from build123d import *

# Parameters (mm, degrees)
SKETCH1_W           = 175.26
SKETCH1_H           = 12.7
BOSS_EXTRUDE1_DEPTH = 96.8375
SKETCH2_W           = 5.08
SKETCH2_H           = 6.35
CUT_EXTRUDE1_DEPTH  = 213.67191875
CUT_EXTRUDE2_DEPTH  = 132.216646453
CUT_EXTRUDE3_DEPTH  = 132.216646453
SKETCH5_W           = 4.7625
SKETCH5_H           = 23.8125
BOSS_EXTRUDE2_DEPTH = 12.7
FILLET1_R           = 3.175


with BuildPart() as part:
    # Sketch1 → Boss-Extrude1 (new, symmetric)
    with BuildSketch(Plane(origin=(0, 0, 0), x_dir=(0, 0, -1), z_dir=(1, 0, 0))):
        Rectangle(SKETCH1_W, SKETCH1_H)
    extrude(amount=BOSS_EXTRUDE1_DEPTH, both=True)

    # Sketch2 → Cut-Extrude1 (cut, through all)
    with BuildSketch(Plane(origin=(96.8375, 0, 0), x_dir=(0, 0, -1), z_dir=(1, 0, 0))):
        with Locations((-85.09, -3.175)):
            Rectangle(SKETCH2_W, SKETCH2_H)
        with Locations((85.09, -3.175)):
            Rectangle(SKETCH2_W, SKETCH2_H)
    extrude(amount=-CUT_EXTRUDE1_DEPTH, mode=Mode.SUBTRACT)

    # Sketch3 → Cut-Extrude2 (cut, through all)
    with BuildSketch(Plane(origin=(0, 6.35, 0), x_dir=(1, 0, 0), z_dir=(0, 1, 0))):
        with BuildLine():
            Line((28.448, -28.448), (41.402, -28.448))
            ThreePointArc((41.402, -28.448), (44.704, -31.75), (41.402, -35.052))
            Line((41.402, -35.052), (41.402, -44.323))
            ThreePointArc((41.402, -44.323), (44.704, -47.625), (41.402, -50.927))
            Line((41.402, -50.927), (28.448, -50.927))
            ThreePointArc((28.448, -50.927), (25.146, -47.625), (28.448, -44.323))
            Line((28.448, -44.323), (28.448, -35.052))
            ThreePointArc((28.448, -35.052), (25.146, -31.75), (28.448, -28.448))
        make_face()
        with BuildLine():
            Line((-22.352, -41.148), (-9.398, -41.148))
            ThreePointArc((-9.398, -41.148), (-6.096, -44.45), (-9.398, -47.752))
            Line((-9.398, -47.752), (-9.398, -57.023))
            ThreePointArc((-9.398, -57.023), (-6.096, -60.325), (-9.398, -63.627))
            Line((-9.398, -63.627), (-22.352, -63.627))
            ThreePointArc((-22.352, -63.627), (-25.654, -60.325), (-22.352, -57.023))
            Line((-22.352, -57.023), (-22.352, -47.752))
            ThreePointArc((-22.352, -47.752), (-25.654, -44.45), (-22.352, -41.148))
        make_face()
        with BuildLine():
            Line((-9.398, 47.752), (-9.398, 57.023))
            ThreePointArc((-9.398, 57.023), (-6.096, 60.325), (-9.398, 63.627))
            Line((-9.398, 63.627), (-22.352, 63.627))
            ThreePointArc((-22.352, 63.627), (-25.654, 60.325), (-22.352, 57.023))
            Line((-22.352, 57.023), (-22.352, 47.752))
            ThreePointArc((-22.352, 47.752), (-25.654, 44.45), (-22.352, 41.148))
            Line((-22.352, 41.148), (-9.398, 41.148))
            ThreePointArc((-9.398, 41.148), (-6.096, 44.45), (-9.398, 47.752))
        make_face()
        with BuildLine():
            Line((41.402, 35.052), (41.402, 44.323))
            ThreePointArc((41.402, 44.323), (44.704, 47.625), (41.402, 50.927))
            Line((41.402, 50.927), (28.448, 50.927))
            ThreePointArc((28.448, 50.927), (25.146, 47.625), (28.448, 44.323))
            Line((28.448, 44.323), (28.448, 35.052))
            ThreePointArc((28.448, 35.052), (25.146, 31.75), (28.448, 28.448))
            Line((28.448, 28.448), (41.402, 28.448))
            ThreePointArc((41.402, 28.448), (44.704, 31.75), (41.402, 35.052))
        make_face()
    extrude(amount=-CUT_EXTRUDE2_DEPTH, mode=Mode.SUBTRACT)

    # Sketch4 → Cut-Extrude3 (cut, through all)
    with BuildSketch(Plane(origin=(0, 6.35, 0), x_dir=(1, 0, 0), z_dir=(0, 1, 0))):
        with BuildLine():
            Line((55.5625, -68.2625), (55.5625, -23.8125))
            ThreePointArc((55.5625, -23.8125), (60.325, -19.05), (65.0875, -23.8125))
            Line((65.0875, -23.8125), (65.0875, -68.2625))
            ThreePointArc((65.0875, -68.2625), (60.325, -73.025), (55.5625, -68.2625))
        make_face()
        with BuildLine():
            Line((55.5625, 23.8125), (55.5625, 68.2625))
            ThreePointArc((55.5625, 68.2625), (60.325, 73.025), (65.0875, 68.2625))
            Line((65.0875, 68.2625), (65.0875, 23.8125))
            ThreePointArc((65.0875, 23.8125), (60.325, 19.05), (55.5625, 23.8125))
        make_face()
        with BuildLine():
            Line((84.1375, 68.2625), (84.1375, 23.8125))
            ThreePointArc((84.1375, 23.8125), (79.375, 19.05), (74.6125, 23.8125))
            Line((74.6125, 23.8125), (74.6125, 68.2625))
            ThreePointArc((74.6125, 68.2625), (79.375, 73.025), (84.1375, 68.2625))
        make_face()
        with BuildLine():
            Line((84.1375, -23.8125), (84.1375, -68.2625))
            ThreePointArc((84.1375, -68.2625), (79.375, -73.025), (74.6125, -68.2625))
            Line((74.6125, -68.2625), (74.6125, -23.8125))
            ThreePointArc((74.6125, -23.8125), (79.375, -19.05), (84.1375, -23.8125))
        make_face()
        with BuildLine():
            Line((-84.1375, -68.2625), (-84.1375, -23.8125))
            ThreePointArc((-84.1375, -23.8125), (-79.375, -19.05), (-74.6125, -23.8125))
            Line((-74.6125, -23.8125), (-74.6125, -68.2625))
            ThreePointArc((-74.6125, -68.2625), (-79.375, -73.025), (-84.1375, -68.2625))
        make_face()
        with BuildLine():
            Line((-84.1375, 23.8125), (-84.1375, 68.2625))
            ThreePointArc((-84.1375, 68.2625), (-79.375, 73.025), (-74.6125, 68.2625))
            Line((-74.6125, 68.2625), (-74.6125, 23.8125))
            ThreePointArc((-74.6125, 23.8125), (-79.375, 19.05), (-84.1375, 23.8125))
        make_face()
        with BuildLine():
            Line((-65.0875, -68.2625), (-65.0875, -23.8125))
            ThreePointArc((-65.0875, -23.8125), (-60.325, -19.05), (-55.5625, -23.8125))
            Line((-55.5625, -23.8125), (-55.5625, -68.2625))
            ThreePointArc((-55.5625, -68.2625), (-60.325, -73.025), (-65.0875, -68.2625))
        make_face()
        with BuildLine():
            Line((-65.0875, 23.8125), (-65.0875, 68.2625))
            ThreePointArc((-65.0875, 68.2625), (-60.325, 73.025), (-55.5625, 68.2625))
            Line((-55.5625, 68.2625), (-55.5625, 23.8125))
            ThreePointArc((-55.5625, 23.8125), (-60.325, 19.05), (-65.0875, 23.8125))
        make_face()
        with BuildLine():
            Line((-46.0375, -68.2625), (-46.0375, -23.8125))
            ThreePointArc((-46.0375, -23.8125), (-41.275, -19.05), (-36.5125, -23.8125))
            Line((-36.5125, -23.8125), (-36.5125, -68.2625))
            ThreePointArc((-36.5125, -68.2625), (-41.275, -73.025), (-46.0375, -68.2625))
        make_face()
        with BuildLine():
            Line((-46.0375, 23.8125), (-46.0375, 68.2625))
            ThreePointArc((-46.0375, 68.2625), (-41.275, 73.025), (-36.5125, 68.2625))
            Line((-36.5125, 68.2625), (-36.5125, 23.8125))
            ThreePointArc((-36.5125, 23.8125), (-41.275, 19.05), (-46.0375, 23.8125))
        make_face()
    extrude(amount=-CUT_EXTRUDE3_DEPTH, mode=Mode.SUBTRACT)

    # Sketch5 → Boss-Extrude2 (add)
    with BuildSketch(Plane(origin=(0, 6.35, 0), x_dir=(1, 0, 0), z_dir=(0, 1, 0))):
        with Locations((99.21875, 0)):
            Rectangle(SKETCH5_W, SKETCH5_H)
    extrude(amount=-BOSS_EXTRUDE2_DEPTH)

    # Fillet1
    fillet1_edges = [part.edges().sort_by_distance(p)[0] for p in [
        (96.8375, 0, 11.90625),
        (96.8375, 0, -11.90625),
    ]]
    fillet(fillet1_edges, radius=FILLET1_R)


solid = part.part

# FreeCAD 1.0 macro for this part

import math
import FreeCAD as App
import Part
import Sketcher

V = App.Vector
Q = App.Units.Quantity


def edges_at(feature, points):
    """Names of the edges that pass closest to the given points."""
    edges = feature.Shape.Edges
    near = lambda p: min(range(len(edges)), key=lambda i: edges[i].distToShape(Part.Vertex(*p))[0])
    return sorted({f"Edge{near(p) + 1}" for p in points})

doc = App.newDocument("Part")
body = doc.addObject("PartDesign::Body", "Body")

# Sketch on YZ plane
sketch1 = body.newObject("Sketcher::SketchObject", "Sketch")
sketch1.AttachmentSupport = (doc.getObject("YZ_Plane"), [""])
sketch1.MapMode = "FlatFace"
sketch1.addGeometry([
    Part.LineSegment(V(6, 88, 0), V(-6, 88, 0)),
    Part.LineSegment(V(-6, 88, 0), V(-6, -88, 0)),
    Part.LineSegment(V(-6, -88, 0), V(6, -88, 0)),
    Part.LineSegment(V(6, -88, 0), V(6, 88, 0)),
], False)
sketch1.addConstraint([
    Sketcher.Constraint("Coincident", 0, 2, 1, 1),
    Sketcher.Constraint("Coincident", 1, 2, 2, 1),
    Sketcher.Constraint("Coincident", 2, 2, 3, 1),
    Sketcher.Constraint("Coincident", 3, 2, 0, 1),
    Sketcher.Constraint("Horizontal", 0),
    Sketcher.Constraint("Vertical", 1),
    Sketcher.Constraint("Horizontal", 2),
    Sketcher.Constraint("Vertical", 3),
    Sketcher.Constraint("Symmetric", 0, 2, 2, 2, -1, 1),
    Sketcher.Constraint("DistanceX", 0, 2, 0, 1, Q("0.5 in")),
    Sketcher.Constraint("DistanceY", 1, 2, 1, 1, Q("6.9 in")),
])
pad1 = body.newObject("PartDesign::Pad", "Pad")
pad1.Profile = sketch1
pad1.Length = Q("7.625 in")
pad1.Midplane = True

# Sketch on YZ plane
sketch2 = body.newObject("Sketcher::SketchObject", "Sketch001")
sketch2.AttachmentSupport = (doc.getObject("YZ_Plane"), [""])
sketch2.MapMode = "FlatFace"
sketch2.AttachmentOffset = App.Placement(V(0, 0, 3.8125 * 25.4), App.Rotation())
sketch2.addGeometry([
    Part.LineSegment(V(0, 88, 0), V(-6, 88, 0)),  # 0
    Part.LineSegment(V(-6, 88, 0), V(-6, 83, 0)),  # 1
    Part.LineSegment(V(-6, 83, 0), V(0, 83, 0)),  # 2
    Part.LineSegment(V(0, 83, 0), V(0, 88, 0)),  # 3
    Part.LineSegment(V(0, -83, 0), V(-6, -83, 0)),  # 4
    Part.LineSegment(V(-6, -83, 0), V(-6, -88, 0)),  # 5
    Part.LineSegment(V(-6, -88, 0), V(0, -88, 0)),  # 6
    Part.LineSegment(V(0, -88, 0), V(0, -83, 0)),  # 7
], False)
sketch2.addConstraint([
    Sketcher.Constraint("Coincident", 0, 2, 1, 1),
    Sketcher.Constraint("Coincident", 1, 2, 2, 1),
    Sketcher.Constraint("Coincident", 2, 2, 3, 1),
    Sketcher.Constraint("Coincident", 3, 2, 0, 1),
    Sketcher.Constraint("Coincident", 4, 2, 5, 1),
    Sketcher.Constraint("Coincident", 5, 2, 6, 1),
    Sketcher.Constraint("Coincident", 6, 2, 7, 1),
    Sketcher.Constraint("Coincident", 7, 2, 4, 1),
    Sketcher.Constraint("Horizontal", 0),
    Sketcher.Constraint("Vertical", 1),
    Sketcher.Constraint("Horizontal", 2),
    Sketcher.Constraint("Vertical", 3),
    Sketcher.Constraint("Horizontal", 4),
    Sketcher.Constraint("Vertical", 5),
    Sketcher.Constraint("Horizontal", 6),
    Sketcher.Constraint("Vertical", 7),
    Sketcher.Constraint("Symmetric", 3, 2, 6, 2, -1, 1),
    Sketcher.Constraint("Symmetric", 1, 2, 4, 2, -1),
    Sketcher.Constraint("PointOnObject", 2, 2, -2),
    Sketcher.Constraint("DistanceY", 1, 2, 1, 1, Q("0.2 in")),
    Sketcher.Constraint("DistanceX", 0, 2, 0, 1, Q("0.25 in")),
    Sketcher.Constraint("DistanceY", 4, 2, 1, 2, Q("6.5 in")),
])
pocket1 = body.newObject("PartDesign::Pocket", "Pocket")
pocket1.Profile = sketch2
pocket1.Type = "ThroughAll"

# Sketch on XZ plane
sketch3 = body.newObject("Sketcher::SketchObject", "Sketch002")
sketch3.AttachmentSupport = (doc.getObject("XZ_Plane"), [""])
sketch3.MapMode = "FlatFace"
sketch3.AttachmentOffset = App.Placement(V(0, 0, -0.25 * 25.4), App.Rotation())
sketch3.addGeometry([
    Part.LineSegment(V(41.4, 28.4, 0), V(28.4, 28.4, 0)),  # 0
    Part.ArcOfCircle(Part.Circle(V(28.4, 31.8, 0), V(0, 0, 1), 3.3), math.radians(90), math.radians(270)),  # 1
    Part.LineSegment(V(28.4, 35.1, 0), V(28.4, 44.3, 0)),  # 2
    Part.ArcOfCircle(Part.Circle(V(28.4, 47.6, 0), V(0, 0, 1), 3.3), math.radians(90), math.radians(270)),  # 3
    Part.LineSegment(V(28.4, 50.9, 0), V(41.4, 50.9, 0)),  # 4
    Part.ArcOfCircle(Part.Circle(V(41.4, 47.6, 0), V(0, 0, 1), 3.3), math.radians(-90), math.radians(90)),  # 5
    Part.LineSegment(V(41.4, 44.3, 0), V(41.4, 35.1, 0)),  # 6
    Part.ArcOfCircle(Part.Circle(V(41.4, 31.8, 0), V(0, 0, 1), 3.3), math.radians(-90), math.radians(90)),  # 7
    Part.LineSegment(V(-9.4, 41.1, 0), V(-22.4, 41.1, 0)),  # 8
    Part.ArcOfCircle(Part.Circle(V(-22.4, 44.5, 0), V(0, 0, 1), 3.3), math.radians(90), math.radians(270)),  # 9
    Part.LineSegment(V(-22.4, 47.8, 0), V(-22.4, 57, 0)),  # 10
    Part.ArcOfCircle(Part.Circle(V(-22.4, 60.3, 0), V(0, 0, 1), 3.3), math.radians(90), math.radians(270)),  # 11
    Part.LineSegment(V(-22.4, 63.6, 0), V(-9.4, 63.6, 0)),  # 12
    Part.ArcOfCircle(Part.Circle(V(-9.4, 60.3, 0), V(0, 0, 1), 3.3), math.radians(-90), math.radians(90)),  # 13
    Part.LineSegment(V(-9.4, 57, 0), V(-9.4, 47.8, 0)),  # 14
    Part.ArcOfCircle(Part.Circle(V(-9.4, 44.5, 0), V(0, 0, 1), 3.3), math.radians(-90), math.radians(90)),  # 15
    Part.LineSegment(V(-9.4, -47.8, 0), V(-9.4, -57, 0)),  # 16
    Part.ArcOfCircle(Part.Circle(V(-9.4, -60.3, 0), V(0, 0, 1), 3.3), math.radians(-90), math.radians(90)),  # 17
    Part.LineSegment(V(-9.4, -63.6, 0), V(-22.4, -63.6, 0)),  # 18
    Part.ArcOfCircle(Part.Circle(V(-22.4, -60.3, 0), V(0, 0, 1), 3.3), math.radians(90), math.radians(270)),  # 19
    Part.LineSegment(V(-22.4, -57, 0), V(-22.4, -47.8, 0)),  # 20
    Part.ArcOfCircle(Part.Circle(V(-22.4, -44.5, 0), V(0, 0, 1), 3.3), math.radians(90), math.radians(270)),  # 21
    Part.LineSegment(V(-22.4, -41.1, 0), V(-9.4, -41.1, 0)),  # 22
    Part.ArcOfCircle(Part.Circle(V(-9.4, -44.5, 0), V(0, 0, 1), 3.3), math.radians(-90), math.radians(90)),  # 23
    Part.LineSegment(V(41.4, -35.1, 0), V(41.4, -44.3, 0)),  # 24
    Part.ArcOfCircle(Part.Circle(V(41.4, -47.6, 0), V(0, 0, 1), 3.3), math.radians(-90), math.radians(90)),  # 25
    Part.LineSegment(V(41.4, -50.9, 0), V(28.4, -50.9, 0)),  # 26
    Part.ArcOfCircle(Part.Circle(V(28.4, -47.6, 0), V(0, 0, 1), 3.3), math.radians(90), math.radians(270)),  # 27
    Part.LineSegment(V(28.4, -44.3, 0), V(28.4, -35.1, 0)),  # 28
    Part.ArcOfCircle(Part.Circle(V(28.4, -31.8, 0), V(0, 0, 1), 3.3), math.radians(90), math.radians(270)),  # 29
    Part.LineSegment(V(28.4, -28.4, 0), V(41.4, -28.4, 0)),  # 30
    Part.ArcOfCircle(Part.Circle(V(41.4, -31.8, 0), V(0, 0, 1), 3.3), math.radians(-90), math.radians(90)),  # 31
], False)
sketch3.addConstraint([
    Sketcher.Constraint("Tangent", 0, 2, 1, 2),
    Sketcher.Constraint("Coincident", 1, 1, 2, 1),
    Sketcher.Constraint("Coincident", 2, 2, 3, 2),
    Sketcher.Constraint("Tangent", 3, 1, 4, 1),
    Sketcher.Constraint("Tangent", 4, 2, 5, 2),
    Sketcher.Constraint("Coincident", 5, 1, 6, 1),
    Sketcher.Constraint("Coincident", 6, 2, 7, 2),
    Sketcher.Constraint("Tangent", 7, 1, 0, 1),
    Sketcher.Constraint("Tangent", 8, 2, 9, 2),
    Sketcher.Constraint("Coincident", 9, 1, 10, 1),
    Sketcher.Constraint("Coincident", 10, 2, 11, 2),
    Sketcher.Constraint("Tangent", 11, 1, 12, 1),
    Sketcher.Constraint("Tangent", 12, 2, 13, 2),
    Sketcher.Constraint("Coincident", 13, 1, 14, 1),
    Sketcher.Constraint("Coincident", 14, 2, 15, 2),
    Sketcher.Constraint("Tangent", 15, 1, 8, 1),
    Sketcher.Constraint("Coincident", 16, 2, 17, 2),
    Sketcher.Constraint("Tangent", 17, 1, 18, 1),
    Sketcher.Constraint("Tangent", 18, 2, 19, 2),
    Sketcher.Constraint("Coincident", 19, 1, 20, 1),
    Sketcher.Constraint("Coincident", 20, 2, 21, 2),
    Sketcher.Constraint("Tangent", 21, 1, 22, 1),
    Sketcher.Constraint("Tangent", 22, 2, 23, 2),
    Sketcher.Constraint("Coincident", 23, 1, 16, 1),
    Sketcher.Constraint("Coincident", 24, 2, 25, 2),
    Sketcher.Constraint("Tangent", 25, 1, 26, 1),
    Sketcher.Constraint("Tangent", 26, 2, 27, 2),
    Sketcher.Constraint("Coincident", 27, 1, 28, 1),
    Sketcher.Constraint("Coincident", 28, 2, 29, 2),
    Sketcher.Constraint("Tangent", 29, 1, 30, 1),
    Sketcher.Constraint("Tangent", 30, 2, 31, 2),
    Sketcher.Constraint("Coincident", 31, 1, 24, 1),
    Sketcher.Constraint("Horizontal", 0),
    Sketcher.Constraint("Vertical", 2),
    Sketcher.Constraint("Horizontal", 4),
    Sketcher.Constraint("Vertical", 6),
    Sketcher.Constraint("Horizontal", 8),
    Sketcher.Constraint("Vertical", 10),
    Sketcher.Constraint("Horizontal", 12),
    Sketcher.Constraint("Vertical", 14),
    Sketcher.Constraint("Vertical", 16),
    Sketcher.Constraint("Horizontal", 18),
    Sketcher.Constraint("Vertical", 20),
    Sketcher.Constraint("Horizontal", 22),
    Sketcher.Constraint("Vertical", 24),
    Sketcher.Constraint("Horizontal", 26),
    Sketcher.Constraint("Vertical", 28),
    Sketcher.Constraint("Horizontal", 30),
    Sketcher.Constraint("Equal", 1, 3),
    Sketcher.Constraint("Equal", 3, 5),
    Sketcher.Constraint("Equal", 5, 7),
    Sketcher.Constraint("Equal", 7, 9),
    Sketcher.Constraint("Equal", 9, 11),
    Sketcher.Constraint("Equal", 11, 13),
    Sketcher.Constraint("Equal", 13, 15),
    Sketcher.Constraint("Equal", 15, 17),
    Sketcher.Constraint("Equal", 17, 19),
    Sketcher.Constraint("Equal", 19, 21),
    Sketcher.Constraint("Equal", 21, 23),
    Sketcher.Constraint("Equal", 23, 25),
    Sketcher.Constraint("Equal", 25, 27),
    Sketcher.Constraint("Equal", 27, 29),
    Sketcher.Constraint("Equal", 29, 31),
    Sketcher.Constraint("Symmetric", 13, 3, 17, 3, -1),
    Sketcher.Constraint("Symmetric", 9, 3, 21, 3, -1),
    Sketcher.Constraint("Symmetric", 5, 3, 25, 3, -1),
    Sketcher.Constraint("Symmetric", 1, 3, 29, 3, -1),
    Sketcher.Constraint("Vertical", 1, 3, 3, 3),
    Sketcher.Constraint("Vertical", 5, 3, 7, 3),
    Sketcher.Constraint("Vertical", 9, 3, 11, 3),
    Sketcher.Constraint("Vertical", 13, 3, 15, 3),
    Sketcher.Constraint("Vertical", 11, 3, 19, 3),
    Sketcher.Constraint("Vertical", 17, 3, 23, 3),
    Sketcher.Constraint("Vertical", 3, 3, 27, 3),
    Sketcher.Constraint("Vertical", 25, 3, 31, 3),
    Sketcher.Constraint("Vertical", 0, 2, 1, 1),
    Sketcher.Constraint("Vertical", 4, 2, 5, 1),
    Sketcher.Constraint("Vertical", 8, 2, 9, 1),
    Sketcher.Constraint("Vertical", 12, 2, 13, 1),
    Sketcher.Constraint("Vertical", 15, 1, 16, 2),
    Sketcher.Constraint("Vertical", 18, 2, 19, 1),
    Sketcher.Constraint("Vertical", 7, 1, 24, 2),
    Sketcher.Constraint("Vertical", 26, 2, 27, 1),
    Sketcher.Constraint("Equal", 4, 8),
    Sketcher.Constraint("Equal", 6, 10),
    Sketcher.Constraint("Radius", 1, Q("0.13 in")),
    Sketcher.Constraint("DistanceX", 9, 3, 3, 3, Q("2 in")),
    Sketcher.Constraint("DistanceY", 21, 3, 1, 3, Q("3 in")),
    Sketcher.Constraint("DistanceX", 0, 2, 0, 1, Q("0.51 in")),
    Sketcher.Constraint("DistanceY", 1, 3, 9, 3, Q("0.5 in")),
    Sketcher.Constraint("DistanceY", 2, 1, 2, 2, Q("0.365 in")),
    Sketcher.Constraint("DistanceX", -1, 1, 1, 3, Q("1.12 in")),
])
pocket2 = body.newObject("PartDesign::Pocket", "Pocket001")
pocket2.Profile = sketch3
pocket2.Type = "ThroughAll"
pocket2.Reversed = True

# Sketch on XZ plane
sketch4 = body.newObject("Sketcher::SketchObject", "Sketch003")
sketch4.AttachmentSupport = (doc.getObject("XZ_Plane"), [""])
sketch4.MapMode = "FlatFace"
sketch4.AttachmentOffset = App.Placement(V(0, 0, -0.25 * 25.4), App.Rotation())
sketch4.addGeometry([
    Part.LineSegment(V(55.6, 23.8, 0), V(55.6, 68.3, 0)),  # 0
    Part.ArcOfCircle(Part.Circle(V(60.3, 68.3, 0), V(0, 0, 1), 4.8), math.radians(0), math.radians(180)),  # 1
    Part.LineSegment(V(65.1, 68.3, 0), V(65.1, 23.8, 0)),  # 2
    Part.ArcOfCircle(Part.Circle(V(60.3, 23.8, 0), V(0, 0, 1), 4.8), math.radians(180), math.radians(360)),  # 3
    Part.LineSegment(V(55.6, -68.3, 0), V(55.6, -23.8, 0)),  # 4
    Part.ArcOfCircle(Part.Circle(V(60.3, -23.8, 0), V(0, 0, 1), 4.8), math.radians(0), math.radians(180)),  # 5
    Part.LineSegment(V(65.1, -23.8, 0), V(65.1, -68.3, 0)),  # 6
    Part.ArcOfCircle(Part.Circle(V(60.3, -68.3, 0), V(0, 0, 1), 4.8), math.radians(180), math.radians(360)),  # 7
    Part.LineSegment(V(84.1, -23.8, 0), V(84.1, -68.3, 0)),  # 8
    Part.ArcOfCircle(Part.Circle(V(79.4, -68.3, 0), V(0, 0, 1), 4.8), math.radians(180), math.radians(360)),  # 9
    Part.LineSegment(V(74.6, -68.3, 0), V(74.6, -23.8, 0)),  # 10
    Part.ArcOfCircle(Part.Circle(V(79.4, -23.8, 0), V(0, 0, 1), 4.8), math.radians(0), math.radians(180)),  # 11
    Part.LineSegment(V(84.1, 68.3, 0), V(84.1, 23.8, 0)),  # 12
    Part.ArcOfCircle(Part.Circle(V(79.4, 23.8, 0), V(0, 0, 1), 4.8), math.radians(180), math.radians(360)),  # 13
    Part.LineSegment(V(74.6, 23.8, 0), V(74.6, 68.3, 0)),  # 14
    Part.ArcOfCircle(Part.Circle(V(79.4, 68.3, 0), V(0, 0, 1), 4.8), math.radians(0), math.radians(180)),  # 15
    Part.LineSegment(V(-84.1, 23.8, 0), V(-84.1, 68.3, 0)),  # 16
    Part.ArcOfCircle(Part.Circle(V(-79.4, 68.3, 0), V(0, 0, 1), 4.8), math.radians(0), math.radians(180)),  # 17
    Part.LineSegment(V(-74.6, 68.3, 0), V(-74.6, 23.8, 0)),  # 18
    Part.ArcOfCircle(Part.Circle(V(-79.4, 23.8, 0), V(0, 0, 1), 4.8), math.radians(180), math.radians(360)),  # 19
    Part.LineSegment(V(-84.1, -68.3, 0), V(-84.1, -23.8, 0)),  # 20
    Part.ArcOfCircle(Part.Circle(V(-79.4, -23.8, 0), V(0, 0, 1), 4.8), math.radians(0), math.radians(180)),  # 21
    Part.LineSegment(V(-74.6, -23.8, 0), V(-74.6, -68.3, 0)),  # 22
    Part.ArcOfCircle(Part.Circle(V(-79.4, -68.3, 0), V(0, 0, 1), 4.8), math.radians(180), math.radians(360)),  # 23
    Part.LineSegment(V(-65.1, 23.8, 0), V(-65.1, 68.3, 0)),  # 24
    Part.ArcOfCircle(Part.Circle(V(-60.3, 68.3, 0), V(0, 0, 1), 4.8), math.radians(0), math.radians(180)),  # 25
    Part.LineSegment(V(-55.6, 68.3, 0), V(-55.6, 23.8, 0)),  # 26
    Part.ArcOfCircle(Part.Circle(V(-60.3, 23.8, 0), V(0, 0, 1), 4.8), math.radians(180), math.radians(360)),  # 27
    Part.LineSegment(V(-65.1, -68.3, 0), V(-65.1, -23.8, 0)),  # 28
    Part.ArcOfCircle(Part.Circle(V(-60.3, -23.8, 0), V(0, 0, 1), 4.8), math.radians(0), math.radians(180)),  # 29
    Part.LineSegment(V(-55.6, -23.8, 0), V(-55.6, -68.3, 0)),  # 30
    Part.ArcOfCircle(Part.Circle(V(-60.3, -68.3, 0), V(0, 0, 1), 4.8), math.radians(180), math.radians(360)),  # 31
    Part.LineSegment(V(-46, 23.8, 0), V(-46, 68.3, 0)),  # 32
    Part.ArcOfCircle(Part.Circle(V(-41.3, 68.3, 0), V(0, 0, 1), 4.8), math.radians(0), math.radians(180)),  # 33
    Part.LineSegment(V(-36.5, 68.3, 0), V(-36.5, 23.8, 0)),  # 34
    Part.ArcOfCircle(Part.Circle(V(-41.3, 23.8, 0), V(0, 0, 1), 4.8), math.radians(180), math.radians(360)),  # 35
    Part.LineSegment(V(-46, -68.3, 0), V(-46, -23.8, 0)),  # 36
    Part.ArcOfCircle(Part.Circle(V(-41.3, -23.8, 0), V(0, 0, 1), 4.8), math.radians(0), math.radians(180)),  # 37
    Part.LineSegment(V(-36.5, -23.8, 0), V(-36.5, -68.3, 0)),  # 38
    Part.ArcOfCircle(Part.Circle(V(-41.3, -68.3, 0), V(0, 0, 1), 4.8), math.radians(180), math.radians(360)),  # 39
], False)
sketch4.addConstraint([
    Sketcher.Constraint("Tangent", 0, 2, 1, 2),
    Sketcher.Constraint("Tangent", 1, 1, 2, 1),
    Sketcher.Constraint("Tangent", 2, 2, 3, 2),
    Sketcher.Constraint("Tangent", 3, 1, 0, 1),
    Sketcher.Constraint("Tangent", 4, 2, 5, 2),
    Sketcher.Constraint("Tangent", 5, 1, 6, 1),
    Sketcher.Constraint("Tangent", 6, 2, 7, 2),
    Sketcher.Constraint("Tangent", 7, 1, 4, 1),
    Sketcher.Constraint("Tangent", 8, 2, 9, 2),
    Sketcher.Constraint("Tangent", 9, 1, 10, 1),
    Sketcher.Constraint("Tangent", 10, 2, 11, 2),
    Sketcher.Constraint("Tangent", 11, 1, 8, 1),
    Sketcher.Constraint("Tangent", 12, 2, 13, 2),
    Sketcher.Constraint("Tangent", 13, 1, 14, 1),
    Sketcher.Constraint("Tangent", 14, 2, 15, 2),
    Sketcher.Constraint("Tangent", 15, 1, 12, 1),
    Sketcher.Constraint("Tangent", 16, 2, 17, 2),
    Sketcher.Constraint("Tangent", 17, 1, 18, 1),
    Sketcher.Constraint("Tangent", 18, 2, 19, 2),
    Sketcher.Constraint("Tangent", 19, 1, 16, 1),
    Sketcher.Constraint("Tangent", 20, 2, 21, 2),
    Sketcher.Constraint("Tangent", 21, 1, 22, 1),
    Sketcher.Constraint("Tangent", 22, 2, 23, 2),
    Sketcher.Constraint("Tangent", 23, 1, 20, 1),
    Sketcher.Constraint("Tangent", 24, 2, 25, 2),
    Sketcher.Constraint("Tangent", 25, 1, 26, 1),
    Sketcher.Constraint("Tangent", 26, 2, 27, 2),
    Sketcher.Constraint("Tangent", 27, 1, 24, 1),
    Sketcher.Constraint("Tangent", 28, 2, 29, 2),
    Sketcher.Constraint("Tangent", 29, 1, 30, 1),
    Sketcher.Constraint("Tangent", 30, 2, 31, 2),
    Sketcher.Constraint("Tangent", 31, 1, 28, 1),
    Sketcher.Constraint("Tangent", 32, 2, 33, 2),
    Sketcher.Constraint("Tangent", 33, 1, 34, 1),
    Sketcher.Constraint("Tangent", 34, 2, 35, 2),
    Sketcher.Constraint("Tangent", 35, 1, 32, 1),
    Sketcher.Constraint("Tangent", 36, 2, 37, 2),
    Sketcher.Constraint("Tangent", 37, 1, 38, 1),
    Sketcher.Constraint("Tangent", 38, 2, 39, 2),
    Sketcher.Constraint("Tangent", 39, 1, 36, 1),
    Sketcher.Constraint("Vertical", 0),
    Sketcher.Constraint("Vertical", 2),
    Sketcher.Constraint("Vertical", 4),
    Sketcher.Constraint("Vertical", 6),
    Sketcher.Constraint("Vertical", 8),
    Sketcher.Constraint("Vertical", 10),
    Sketcher.Constraint("Vertical", 12),
    Sketcher.Constraint("Vertical", 14),
    Sketcher.Constraint("Vertical", 16),
    Sketcher.Constraint("Vertical", 18),
    Sketcher.Constraint("Vertical", 20),
    Sketcher.Constraint("Vertical", 22),
    Sketcher.Constraint("Vertical", 24),
    Sketcher.Constraint("Vertical", 26),
    Sketcher.Constraint("Vertical", 28),
    Sketcher.Constraint("Vertical", 30),
    Sketcher.Constraint("Vertical", 32),
    Sketcher.Constraint("Vertical", 34),
    Sketcher.Constraint("Vertical", 36),
    Sketcher.Constraint("Vertical", 38),
    Sketcher.Constraint("Equal", 3, 5),
    Sketcher.Constraint("Equal", 7, 9),
    Sketcher.Constraint("Equal", 11, 13),
    Sketcher.Constraint("Equal", 15, 17),
    Sketcher.Constraint("Equal", 19, 21),
    Sketcher.Constraint("Equal", 23, 25),
    Sketcher.Constraint("Equal", 27, 29),
    Sketcher.Constraint("Equal", 31, 33),
    Sketcher.Constraint("Equal", 35, 37),
    Sketcher.Constraint("Symmetric", 9, 3, 17, 3, -1, 1),
    Sketcher.Constraint("Symmetric", 13, 3, 21, 3, -1, 1),
    Sketcher.Constraint("Symmetric", 7, 3, 25, 3, -1, 1),
    Sketcher.Constraint("Symmetric", 3, 3, 29, 3, -1, 1),
    Sketcher.Constraint("Symmetric", 15, 3, 17, 3, -2),
    Sketcher.Constraint("Symmetric", 1, 3, 25, 3, -2),
    Sketcher.Constraint("Symmetric", 35, 3, 37, 3, -1),
    Sketcher.Constraint("Horizontal", 7, 3, 9, 3),
    Sketcher.Constraint("Horizontal", 5, 3, 11, 3),
    Sketcher.Constraint("Horizontal", 3, 3, 13, 3),
    Sketcher.Constraint("Horizontal", 13, 3, 19, 3),
    Sketcher.Constraint("Horizontal", 11, 3, 21, 3),
    Sketcher.Constraint("Horizontal", 9, 3, 23, 3),
    Sketcher.Constraint("Horizontal", 19, 3, 27, 3),
    Sketcher.Constraint("Horizontal", 23, 3, 31, 3),
    Sketcher.Constraint("Horizontal", 25, 3, 33, 3),
    Sketcher.Constraint("Horizontal", 27, 3, 35, 3),
    Sketcher.Constraint("Horizontal", 31, 3, 39, 3),
    Sketcher.Constraint("Radius", 1, Q("0.1875 in")),
    Sketcher.Constraint("DistanceY", 0, 1, 0, 2, Q("1.75 in")),
    Sketcher.Constraint("DistanceX", 17, 3, 1, 3, Q("5.5 in")),
    Sketcher.Constraint("DistanceX", 17, 3, 33, 3, Q("1.5 in")),
    Sketcher.Constraint("DistanceX", 7, 3, 9, 3, Q("0.75 in")),
    Sketcher.Constraint("DistanceY", -1, 1, 1, 3, Q("2.6875 in")),
])
pocket3 = body.newObject("PartDesign::Pocket", "Pocket002")
pocket3.Profile = sketch4
pocket3.Type = "ThroughAll"
pocket3.Reversed = True

# Sketch on XZ plane
sketch5 = body.newObject("Sketcher::SketchObject", "Sketch004")
sketch5.AttachmentSupport = (doc.getObject("XZ_Plane"), [""])
sketch5.MapMode = "FlatFace"
sketch5.AttachmentOffset = App.Placement(V(0, 0, -0.25 * 25.4), App.Rotation())
sketch5.addGeometry([
    Part.LineSegment(V(96.8, -11.9, 0), V(96.8, 11.9, 0)),
    Part.LineSegment(V(96.8, 11.9, 0), V(101.6, 11.9, 0)),
    Part.LineSegment(V(101.6, 11.9, 0), V(101.6, -11.9, 0)),
    Part.LineSegment(V(101.6, -11.9, 0), V(96.8, -11.9, 0)),
], False)
sketch5.addConstraint([
    Sketcher.Constraint("Coincident", 0, 2, 1, 1),
    Sketcher.Constraint("Coincident", 1, 2, 2, 1),
    Sketcher.Constraint("Coincident", 2, 2, 3, 1),
    Sketcher.Constraint("Coincident", 3, 2, 0, 1),
    Sketcher.Constraint("Vertical", 0),
    Sketcher.Constraint("Horizontal", 1),
    Sketcher.Constraint("Vertical", 2),
    Sketcher.Constraint("Horizontal", 3),
    Sketcher.Constraint("DistanceX", -1, 1, 1, 2, Q("4 in")),
    Sketcher.Constraint("DistanceX", 1, 1, 1, 2, Q("0.1875 in")),
    Sketcher.Constraint("DistanceY", 0, 1, 0, 2, Q("0.9375 in")),
    Sketcher.Constraint("DistanceY", -1, 1, 0, 2, Q("0.46875 in")),
])
pad2 = body.newObject("PartDesign::Pad", "Pad001")
pad2.Profile = sketch5
pad2.Length = Q("0.5 in")
doc.recompute()

fillet = body.newObject("PartDesign::Fillet", "Fillet")
fillet.Base = (pad2, edges_at(pad2, [(96.838, 0, 11.906), (96.838, 0, -11.906)]))
fillet.Radius = Q("0.125 in")

doc.recompute()
